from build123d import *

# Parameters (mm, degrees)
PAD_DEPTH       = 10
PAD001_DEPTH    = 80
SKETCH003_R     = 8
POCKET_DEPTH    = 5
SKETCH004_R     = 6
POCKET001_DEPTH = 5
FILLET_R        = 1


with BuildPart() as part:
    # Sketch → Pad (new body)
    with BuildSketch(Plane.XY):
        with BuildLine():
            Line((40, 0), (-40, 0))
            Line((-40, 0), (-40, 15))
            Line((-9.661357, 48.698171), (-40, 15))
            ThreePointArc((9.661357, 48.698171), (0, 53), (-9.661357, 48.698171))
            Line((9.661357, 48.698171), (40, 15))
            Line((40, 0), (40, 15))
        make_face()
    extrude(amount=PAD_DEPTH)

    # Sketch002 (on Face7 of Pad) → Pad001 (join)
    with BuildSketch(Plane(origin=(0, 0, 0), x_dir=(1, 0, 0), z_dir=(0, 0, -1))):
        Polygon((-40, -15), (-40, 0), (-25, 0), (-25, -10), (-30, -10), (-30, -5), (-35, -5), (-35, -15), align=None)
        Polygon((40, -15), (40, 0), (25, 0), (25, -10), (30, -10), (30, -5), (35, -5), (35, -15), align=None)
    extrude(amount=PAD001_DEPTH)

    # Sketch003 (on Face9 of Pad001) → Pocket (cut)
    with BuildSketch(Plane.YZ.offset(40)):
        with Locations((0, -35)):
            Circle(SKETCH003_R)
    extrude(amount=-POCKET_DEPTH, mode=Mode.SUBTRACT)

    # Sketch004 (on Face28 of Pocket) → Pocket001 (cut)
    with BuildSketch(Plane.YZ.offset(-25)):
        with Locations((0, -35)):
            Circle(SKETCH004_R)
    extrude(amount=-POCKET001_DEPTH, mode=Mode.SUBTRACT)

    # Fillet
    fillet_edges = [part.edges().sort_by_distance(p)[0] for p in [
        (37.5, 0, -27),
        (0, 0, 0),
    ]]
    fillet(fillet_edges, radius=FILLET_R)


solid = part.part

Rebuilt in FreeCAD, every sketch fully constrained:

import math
import FreeCAD as App
import Part
import Sketcher

V = App.Vector
Q = App.Units.Quantity


def edges_at(feature, points):
    """Names of the edges that pass closest to the given points."""
    edges = feature.Shape.Edges
    near = lambda p: min(range(len(edges)), key=lambda i: edges[i].distToShape(Part.Vertex(*p))[0])
    return sorted({f"Edge{near(p) + 1}" for p in points})

doc = App.newDocument("Part")
body = doc.addObject("PartDesign::Body", "Body")

# Sketch on XY plane
sketch1 = doc.addObject("Sketcher::SketchObject", "Sketch")
body.addObject(sketch1)
sketch1.AttachmentSupport = (doc.XY_Plane, [""])
sketch1.MapMode = "FlatFace"
sketch1.addGeometry(Part.LineSegment(V(-40, 0, 0), V(40, 0, 0)), False)
sketch1.addGeometry(Part.LineSegment(V(40, 0, 0), V(40, 15, 0)), False)
sketch1.addGeometry(Part.LineSegment(V(40, 15, 0), V(9.661357, 48.698171, 0)), False)
sketch1.addGeometry(Part.ArcOfCircle(Part.Circle(V(0, 40, 0), V(0, 0, 1), 13), math.radians(41.996875), math.radians(138.003125)), False)
sketch1.addGeometry(Part.LineSegment(V(-9.661357, 48.698171, 0), V(-40, 15, 0)), False)
sketch1.addGeometry(Part.LineSegment(V(-40, 15, 0), V(-40, 0, 0)), False)
sketch1.addConstraint(Sketcher.Constraint("Coincident", 0, 2, 1, 1))
sketch1.addConstraint(Sketcher.Constraint("Coincident", 1, 2, 2, 1))
sketch1.addConstraint(Sketcher.Constraint("Tangent", 2, 2, 3, 1))
sketch1.addConstraint(Sketcher.Constraint("Tangent", 3, 2, 4, 1))
sketch1.addConstraint(Sketcher.Constraint("Coincident", 4, 2, 5, 1))
sketch1.addConstraint(Sketcher.Constraint("Coincident", 5, 2, 0, 1))
sketch1.addConstraint(Sketcher.Constraint("Horizontal", 0))
sketch1.addConstraint(Sketcher.Constraint("Vertical", 1))
sketch1.addConstraint(Sketcher.Constraint("Vertical", 5))
sketch1.addConstraint(Sketcher.Constraint("Symmetric", 0, 2, 5, 2, -1, 1))
sketch1.addConstraint(Sketcher.Constraint("Symmetric", 2, 2, 3, 2, -2))
sketch1.addConstraint(Sketcher.Constraint("Radius", 3, Q("13 mm")))
sketch1.addConstraint(Sketcher.Constraint("DistanceX", 0, 1, 0, 2, Q("80 mm")))
sketch1.addConstraint(Sketcher.Constraint("DistanceY", 1, 1, 1, 2, Q("15 mm")))
sketch1.addConstraint(Sketcher.Constraint("DistanceY", -1, 1, 3, 3, Q("40 mm")))
pad1 = doc.addObject("PartDesign::Pad", "Pad")
body.addObject(pad1)
pad1.Profile = sketch1
pad1.Length = 10

# Sketch on XY plane
sketch2 = doc.addObject("Sketcher::SketchObject", "Sketch001")
body.addObject(sketch2)
sketch2.AttachmentSupport = (doc.XY_Plane, [""])
sketch2.MapMode = "FlatFace"
sketch2.addGeometry(Part.LineSegment(V(-40, 0, 0), V(-40, 15, 0)), False)
sketch2.addGeometry(Part.LineSegment(V(-40, 15, 0), V(-35, 15, 0)), False)
sketch2.addGeometry(Part.LineSegment(V(-35, 15, 0), V(-35, 5, 0)), False)
sketch2.addGeometry(Part.LineSegment(V(-35, 5, 0), V(-30, 5, 0)), False)
sketch2.addGeometry(Part.LineSegment(V(-30, 5, 0), V(-30, 10, 0)), False)
sketch2.addGeometry(Part.LineSegment(V(-30, 10, 0), V(-25, 10, 0)), False)
sketch2.addGeometry(Part.LineSegment(V(-25, 10, 0), V(-25, 0, 0)), False)
sketch2.addGeometry(Part.LineSegment(V(-25, 0, 0), V(-40, 0, 0)), False)
sketch2.addGeometry(Part.LineSegment(V(40, 15, 0), V(40, 0, 0)), False)
sketch2.addGeometry(Part.LineSegment(V(40, 0, 0), V(25, 0, 0)), False)
sketch2.addGeometry(Part.LineSegment(V(25, 0, 0), V(25, 10, 0)), False)
sketch2.addGeometry(Part.LineSegment(V(25, 10, 0), V(30, 10, 0)), False)
sketch2.addGeometry(Part.LineSegment(V(30, 10, 0), V(30, 5, 0)), False)
sketch2.addGeometry(Part.LineSegment(V(30, 5, 0), V(35, 5, 0)), False)
sketch2.addGeometry(Part.LineSegment(V(35, 5, 0), V(35, 15, 0)), False)
sketch2.addGeometry(Part.LineSegment(V(35, 15, 0), V(40, 15, 0)), False)
sketch2.addConstraint(Sketcher.Constraint("Coincident", 0, 2, 1, 1))
sketch2.addConstraint(Sketcher.Constraint("Coincident", 1, 2, 2, 1))
sketch2.addConstraint(Sketcher.Constraint("Coincident", 2, 2, 3, 1))
sketch2.addConstraint(Sketcher.Constraint("Coincident", 3, 2, 4, 1))
sketch2.addConstraint(Sketcher.Constraint("Coincident", 4, 2, 5, 1))
sketch2.addConstraint(Sketcher.Constraint("Coincident", 5, 2, 6, 1))
sketch2.addConstraint(Sketcher.Constraint("Coincident", 6, 2, 7, 1))
sketch2.addConstraint(Sketcher.Constraint("Coincident", 7, 2, 0, 1))
sketch2.addConstraint(Sketcher.Constraint("Coincident", 8, 2, 9, 1))
sketch2.addConstraint(Sketcher.Constraint("Coincident", 9, 2, 10, 1))
sketch2.addConstraint(Sketcher.Constraint("Coincident", 10, 2, 11, 1))
sketch2.addConstraint(Sketcher.Constraint("Coincident", 11, 2, 12, 1))
sketch2.addConstraint(Sketcher.Constraint("Coincident", 12, 2, 13, 1))
sketch2.addConstraint(Sketcher.Constraint("Coincident", 13, 2, 14, 1))
sketch2.addConstraint(Sketcher.Constraint("Coincident", 14, 2, 15, 1))
sketch2.addConstraint(Sketcher.Constraint("Coincident", 15, 2, 8, 1))
sketch2.addConstraint(Sketcher.Constraint("Vertical", 0))
sketch2.addConstraint(Sketcher.Constraint("Horizontal", 1))
sketch2.addConstraint(Sketcher.Constraint("Vertical", 2))
sketch2.addConstraint(Sketcher.Constraint("Horizontal", 3))
sketch2.addConstraint(Sketcher.Constraint("Vertical", 4))
sketch2.addConstraint(Sketcher.Constraint("Horizontal", 5))
sketch2.addConstraint(Sketcher.Constraint("Vertical", 6))
sketch2.addConstraint(Sketcher.Constraint("Horizontal", 7))
sketch2.addConstraint(Sketcher.Constraint("Vertical", 8))
sketch2.addConstraint(Sketcher.Constraint("Horizontal", 9))
sketch2.addConstraint(Sketcher.Constraint("Vertical", 10))
sketch2.addConstraint(Sketcher.Constraint("Horizontal", 11))
sketch2.addConstraint(Sketcher.Constraint("Vertical", 12))
sketch2.addConstraint(Sketcher.Constraint("Horizontal", 13))
sketch2.addConstraint(Sketcher.Constraint("Vertical", 14))
sketch2.addConstraint(Sketcher.Constraint("Horizontal", 15))
sketch2.addConstraint(Sketcher.Constraint("Symmetric", 7, 2, 8, 2, -1, 1))
sketch2.addConstraint(Sketcher.Constraint("Symmetric", 6, 2, 9, 2, -2))
sketch2.addConstraint(Sketcher.Constraint("Symmetric", 4, 2, 11, 2, -2))
sketch2.addConstraint(Sketcher.Constraint("Symmetric", 2, 2, 13, 2, -2))
sketch2.addConstraint(Sketcher.Constraint("Horizontal", 1, 2, 14, 2))
sketch2.addConstraint(Sketcher.Constraint("Equal", 1, 3))
sketch2.addConstraint(Sketcher.Constraint("Equal", 3, 5))
sketch2.addConstraint(Sketcher.Constraint("Equal", 9, 0))
sketch2.addConstraint(Sketcher.Constraint("Equal", 15, 4))
sketch2.addConstraint(Sketcher.Constraint("Equal", 2, 6))
sketch2.addConstraint(Sketcher.Constraint("DistanceX", 1, 1, 1, 2, Q("5 mm")))
sketch2.addConstraint(Sketcher.Constraint("DistanceX", 0, 2, -1, 1, Q("40 mm")))
pad2 = doc.addObject("PartDesign::Pad", "Pad001")
body.addObject(pad2)
pad2.Profile = sketch2
pad2.Length = 80
pad2.Reversed = True

# Sketch on YZ plane
sketch3 = doc.addObject("Sketcher::SketchObject", "Sketch002")
body.addObject(sketch3)
sketch3.AttachmentSupport = (doc.YZ_Plane, [""])
sketch3.MapMode = "FlatFace"
sketch3.AttachmentOffset = App.Placement(V(0, 0, 40), App.Rotation())
sketch3.addGeometry(Part.Circle(V(0, -35, 0), V(0, 0, 1), 8), False)
sketch3.addConstraint(Sketcher.Constraint("PointOnObject", 0, 3, -2))
sketch3.addConstraint(Sketcher.Constraint("Diameter", 0, Q("16 mm")))
sketch3.addConstraint(Sketcher.Constraint("DistanceY", 0, 3, -1, 1, Q("35 mm")))
pocket1 = doc.addObject("PartDesign::Pocket", "Pocket")
body.addObject(pocket1)
pocket1.Profile = sketch3
pocket1.Length = 5

# Sketch on YZ plane
sketch4 = doc.addObject("Sketcher::SketchObject", "Sketch003")
body.addObject(sketch4)
sketch4.AttachmentSupport = (doc.YZ_Plane, [""])
sketch4.MapMode = "FlatFace"
sketch4.AttachmentOffset = App.Placement(V(0, 0, -25), App.Rotation())
sketch4.addGeometry(Part.Circle(V(0, -35, 0), V(0, 0, 1), 6), False)
sketch4.addConstraint(Sketcher.Constraint("PointOnObject", 0, 3, -2))
sketch4.addConstraint(Sketcher.Constraint("Diameter", 0, Q("12 mm")))
sketch4.addConstraint(Sketcher.Constraint("DistanceY", 0, 3, -1, 1, Q("35 mm")))
pocket2 = doc.addObject("PartDesign::Pocket", "Pocket001")
body.addObject(pocket2)
pocket2.Profile = sketch4
pocket2.Length = 5
doc.recompute()

fillet = doc.addObject("PartDesign::Fillet", "Fillet")
body.addObject(fillet)
fillet.Base = (pocket2, edges_at(pocket2, [(37.5, 0, -27), (0, 0, 0)]))
fillet.Radius = 1

doc.recompute()
